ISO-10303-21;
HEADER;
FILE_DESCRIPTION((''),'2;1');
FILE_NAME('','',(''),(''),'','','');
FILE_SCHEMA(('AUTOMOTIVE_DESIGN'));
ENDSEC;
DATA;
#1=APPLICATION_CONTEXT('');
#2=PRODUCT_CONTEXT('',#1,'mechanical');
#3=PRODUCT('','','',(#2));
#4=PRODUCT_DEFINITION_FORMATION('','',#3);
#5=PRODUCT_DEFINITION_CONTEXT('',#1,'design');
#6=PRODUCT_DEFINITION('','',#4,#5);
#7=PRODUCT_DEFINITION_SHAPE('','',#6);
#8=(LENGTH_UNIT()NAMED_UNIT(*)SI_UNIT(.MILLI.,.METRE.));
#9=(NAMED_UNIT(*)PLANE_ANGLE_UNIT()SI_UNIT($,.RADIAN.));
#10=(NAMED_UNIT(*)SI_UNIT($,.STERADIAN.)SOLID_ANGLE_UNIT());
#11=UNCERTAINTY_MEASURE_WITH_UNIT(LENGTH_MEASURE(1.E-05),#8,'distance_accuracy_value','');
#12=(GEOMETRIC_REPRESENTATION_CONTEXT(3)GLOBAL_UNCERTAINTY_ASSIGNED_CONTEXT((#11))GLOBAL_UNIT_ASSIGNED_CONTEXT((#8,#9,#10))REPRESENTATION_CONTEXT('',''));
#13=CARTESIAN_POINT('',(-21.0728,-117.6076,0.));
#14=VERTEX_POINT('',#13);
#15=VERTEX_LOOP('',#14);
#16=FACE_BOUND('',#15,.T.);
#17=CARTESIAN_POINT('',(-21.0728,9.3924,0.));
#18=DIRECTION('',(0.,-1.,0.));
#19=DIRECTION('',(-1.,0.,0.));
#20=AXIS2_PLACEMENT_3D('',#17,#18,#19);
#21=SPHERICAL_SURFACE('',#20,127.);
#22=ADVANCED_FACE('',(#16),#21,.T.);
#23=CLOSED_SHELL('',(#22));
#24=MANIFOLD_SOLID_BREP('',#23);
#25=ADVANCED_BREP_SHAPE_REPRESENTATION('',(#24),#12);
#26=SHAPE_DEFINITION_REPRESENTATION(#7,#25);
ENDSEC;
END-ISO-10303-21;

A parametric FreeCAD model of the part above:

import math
import FreeCAD as App
import Part
import Sketcher
from FreeCAD import Vector
Q = App.Units.Quantity

doc = App.newDocument("Part")
body = doc.addObject("PartDesign::Body", "Body")

sketch1 = body.newObject("Sketcher::SketchObject", "Sketch")
sketch1.AttachmentSupport = (doc.getObject("XY_Plane"), [""])
sketch1.MapMode = "FlatFace"
sketch1.addGeometry(Part.LineSegment(Vector(-21, -118, 0), Vector(-21, 136, 0)), False)
sketch1.addGeometry(Part.ArcOfCircle(Part.Circle(Vector(-21, 9, 0), Vector(0, 0, 1), 127), math.radians(90), math.radians(270)), False)
sketch1.addGeometry(Part.LineSegment(Vector(-21, 136, 0), Vector(-21, -118, 0)), True)
sketch1.addConstraint(Sketcher.Constraint("Coincident", 0, 1, 1, 2))
sketch1.addConstraint(Sketcher.Constraint("Coincident", 1, 1, 0, 2))
sketch1.addConstraint(Sketcher.Constraint("Vertical", 0))
sketch1.addConstraint(Sketcher.Constraint("Vertical", 2))
sketch1.addConstraint(Sketcher.Constraint("Coincident", 2, 1, 1, 1))
sketch1.addConstraint(Sketcher.Constraint("Vertical", 1, 3, 0, 1))
sketch1.addConstraint(Sketcher.Constraint("Equal", 0, 2))
sketch1.addConstraint(Sketcher.Constraint("Radius", 1, Q("5 in")))
sketch1.addConstraint(Sketcher.Constraint("DistanceX", 1, 3, -1, 1, Q("21.0728 mm")))
sketch1.addConstraint(Sketcher.Constraint("DistanceY", -1, 1, 1, 3, Q("9.3924 mm")))
revolution = body.newObject("PartDesign::Revolution", "Revolution")
revolution.Profile = sketch1
revolution.ReferenceAxis = (sketch1, ["Axis0"])
revolution.Angle = 360

doc.recompute()
